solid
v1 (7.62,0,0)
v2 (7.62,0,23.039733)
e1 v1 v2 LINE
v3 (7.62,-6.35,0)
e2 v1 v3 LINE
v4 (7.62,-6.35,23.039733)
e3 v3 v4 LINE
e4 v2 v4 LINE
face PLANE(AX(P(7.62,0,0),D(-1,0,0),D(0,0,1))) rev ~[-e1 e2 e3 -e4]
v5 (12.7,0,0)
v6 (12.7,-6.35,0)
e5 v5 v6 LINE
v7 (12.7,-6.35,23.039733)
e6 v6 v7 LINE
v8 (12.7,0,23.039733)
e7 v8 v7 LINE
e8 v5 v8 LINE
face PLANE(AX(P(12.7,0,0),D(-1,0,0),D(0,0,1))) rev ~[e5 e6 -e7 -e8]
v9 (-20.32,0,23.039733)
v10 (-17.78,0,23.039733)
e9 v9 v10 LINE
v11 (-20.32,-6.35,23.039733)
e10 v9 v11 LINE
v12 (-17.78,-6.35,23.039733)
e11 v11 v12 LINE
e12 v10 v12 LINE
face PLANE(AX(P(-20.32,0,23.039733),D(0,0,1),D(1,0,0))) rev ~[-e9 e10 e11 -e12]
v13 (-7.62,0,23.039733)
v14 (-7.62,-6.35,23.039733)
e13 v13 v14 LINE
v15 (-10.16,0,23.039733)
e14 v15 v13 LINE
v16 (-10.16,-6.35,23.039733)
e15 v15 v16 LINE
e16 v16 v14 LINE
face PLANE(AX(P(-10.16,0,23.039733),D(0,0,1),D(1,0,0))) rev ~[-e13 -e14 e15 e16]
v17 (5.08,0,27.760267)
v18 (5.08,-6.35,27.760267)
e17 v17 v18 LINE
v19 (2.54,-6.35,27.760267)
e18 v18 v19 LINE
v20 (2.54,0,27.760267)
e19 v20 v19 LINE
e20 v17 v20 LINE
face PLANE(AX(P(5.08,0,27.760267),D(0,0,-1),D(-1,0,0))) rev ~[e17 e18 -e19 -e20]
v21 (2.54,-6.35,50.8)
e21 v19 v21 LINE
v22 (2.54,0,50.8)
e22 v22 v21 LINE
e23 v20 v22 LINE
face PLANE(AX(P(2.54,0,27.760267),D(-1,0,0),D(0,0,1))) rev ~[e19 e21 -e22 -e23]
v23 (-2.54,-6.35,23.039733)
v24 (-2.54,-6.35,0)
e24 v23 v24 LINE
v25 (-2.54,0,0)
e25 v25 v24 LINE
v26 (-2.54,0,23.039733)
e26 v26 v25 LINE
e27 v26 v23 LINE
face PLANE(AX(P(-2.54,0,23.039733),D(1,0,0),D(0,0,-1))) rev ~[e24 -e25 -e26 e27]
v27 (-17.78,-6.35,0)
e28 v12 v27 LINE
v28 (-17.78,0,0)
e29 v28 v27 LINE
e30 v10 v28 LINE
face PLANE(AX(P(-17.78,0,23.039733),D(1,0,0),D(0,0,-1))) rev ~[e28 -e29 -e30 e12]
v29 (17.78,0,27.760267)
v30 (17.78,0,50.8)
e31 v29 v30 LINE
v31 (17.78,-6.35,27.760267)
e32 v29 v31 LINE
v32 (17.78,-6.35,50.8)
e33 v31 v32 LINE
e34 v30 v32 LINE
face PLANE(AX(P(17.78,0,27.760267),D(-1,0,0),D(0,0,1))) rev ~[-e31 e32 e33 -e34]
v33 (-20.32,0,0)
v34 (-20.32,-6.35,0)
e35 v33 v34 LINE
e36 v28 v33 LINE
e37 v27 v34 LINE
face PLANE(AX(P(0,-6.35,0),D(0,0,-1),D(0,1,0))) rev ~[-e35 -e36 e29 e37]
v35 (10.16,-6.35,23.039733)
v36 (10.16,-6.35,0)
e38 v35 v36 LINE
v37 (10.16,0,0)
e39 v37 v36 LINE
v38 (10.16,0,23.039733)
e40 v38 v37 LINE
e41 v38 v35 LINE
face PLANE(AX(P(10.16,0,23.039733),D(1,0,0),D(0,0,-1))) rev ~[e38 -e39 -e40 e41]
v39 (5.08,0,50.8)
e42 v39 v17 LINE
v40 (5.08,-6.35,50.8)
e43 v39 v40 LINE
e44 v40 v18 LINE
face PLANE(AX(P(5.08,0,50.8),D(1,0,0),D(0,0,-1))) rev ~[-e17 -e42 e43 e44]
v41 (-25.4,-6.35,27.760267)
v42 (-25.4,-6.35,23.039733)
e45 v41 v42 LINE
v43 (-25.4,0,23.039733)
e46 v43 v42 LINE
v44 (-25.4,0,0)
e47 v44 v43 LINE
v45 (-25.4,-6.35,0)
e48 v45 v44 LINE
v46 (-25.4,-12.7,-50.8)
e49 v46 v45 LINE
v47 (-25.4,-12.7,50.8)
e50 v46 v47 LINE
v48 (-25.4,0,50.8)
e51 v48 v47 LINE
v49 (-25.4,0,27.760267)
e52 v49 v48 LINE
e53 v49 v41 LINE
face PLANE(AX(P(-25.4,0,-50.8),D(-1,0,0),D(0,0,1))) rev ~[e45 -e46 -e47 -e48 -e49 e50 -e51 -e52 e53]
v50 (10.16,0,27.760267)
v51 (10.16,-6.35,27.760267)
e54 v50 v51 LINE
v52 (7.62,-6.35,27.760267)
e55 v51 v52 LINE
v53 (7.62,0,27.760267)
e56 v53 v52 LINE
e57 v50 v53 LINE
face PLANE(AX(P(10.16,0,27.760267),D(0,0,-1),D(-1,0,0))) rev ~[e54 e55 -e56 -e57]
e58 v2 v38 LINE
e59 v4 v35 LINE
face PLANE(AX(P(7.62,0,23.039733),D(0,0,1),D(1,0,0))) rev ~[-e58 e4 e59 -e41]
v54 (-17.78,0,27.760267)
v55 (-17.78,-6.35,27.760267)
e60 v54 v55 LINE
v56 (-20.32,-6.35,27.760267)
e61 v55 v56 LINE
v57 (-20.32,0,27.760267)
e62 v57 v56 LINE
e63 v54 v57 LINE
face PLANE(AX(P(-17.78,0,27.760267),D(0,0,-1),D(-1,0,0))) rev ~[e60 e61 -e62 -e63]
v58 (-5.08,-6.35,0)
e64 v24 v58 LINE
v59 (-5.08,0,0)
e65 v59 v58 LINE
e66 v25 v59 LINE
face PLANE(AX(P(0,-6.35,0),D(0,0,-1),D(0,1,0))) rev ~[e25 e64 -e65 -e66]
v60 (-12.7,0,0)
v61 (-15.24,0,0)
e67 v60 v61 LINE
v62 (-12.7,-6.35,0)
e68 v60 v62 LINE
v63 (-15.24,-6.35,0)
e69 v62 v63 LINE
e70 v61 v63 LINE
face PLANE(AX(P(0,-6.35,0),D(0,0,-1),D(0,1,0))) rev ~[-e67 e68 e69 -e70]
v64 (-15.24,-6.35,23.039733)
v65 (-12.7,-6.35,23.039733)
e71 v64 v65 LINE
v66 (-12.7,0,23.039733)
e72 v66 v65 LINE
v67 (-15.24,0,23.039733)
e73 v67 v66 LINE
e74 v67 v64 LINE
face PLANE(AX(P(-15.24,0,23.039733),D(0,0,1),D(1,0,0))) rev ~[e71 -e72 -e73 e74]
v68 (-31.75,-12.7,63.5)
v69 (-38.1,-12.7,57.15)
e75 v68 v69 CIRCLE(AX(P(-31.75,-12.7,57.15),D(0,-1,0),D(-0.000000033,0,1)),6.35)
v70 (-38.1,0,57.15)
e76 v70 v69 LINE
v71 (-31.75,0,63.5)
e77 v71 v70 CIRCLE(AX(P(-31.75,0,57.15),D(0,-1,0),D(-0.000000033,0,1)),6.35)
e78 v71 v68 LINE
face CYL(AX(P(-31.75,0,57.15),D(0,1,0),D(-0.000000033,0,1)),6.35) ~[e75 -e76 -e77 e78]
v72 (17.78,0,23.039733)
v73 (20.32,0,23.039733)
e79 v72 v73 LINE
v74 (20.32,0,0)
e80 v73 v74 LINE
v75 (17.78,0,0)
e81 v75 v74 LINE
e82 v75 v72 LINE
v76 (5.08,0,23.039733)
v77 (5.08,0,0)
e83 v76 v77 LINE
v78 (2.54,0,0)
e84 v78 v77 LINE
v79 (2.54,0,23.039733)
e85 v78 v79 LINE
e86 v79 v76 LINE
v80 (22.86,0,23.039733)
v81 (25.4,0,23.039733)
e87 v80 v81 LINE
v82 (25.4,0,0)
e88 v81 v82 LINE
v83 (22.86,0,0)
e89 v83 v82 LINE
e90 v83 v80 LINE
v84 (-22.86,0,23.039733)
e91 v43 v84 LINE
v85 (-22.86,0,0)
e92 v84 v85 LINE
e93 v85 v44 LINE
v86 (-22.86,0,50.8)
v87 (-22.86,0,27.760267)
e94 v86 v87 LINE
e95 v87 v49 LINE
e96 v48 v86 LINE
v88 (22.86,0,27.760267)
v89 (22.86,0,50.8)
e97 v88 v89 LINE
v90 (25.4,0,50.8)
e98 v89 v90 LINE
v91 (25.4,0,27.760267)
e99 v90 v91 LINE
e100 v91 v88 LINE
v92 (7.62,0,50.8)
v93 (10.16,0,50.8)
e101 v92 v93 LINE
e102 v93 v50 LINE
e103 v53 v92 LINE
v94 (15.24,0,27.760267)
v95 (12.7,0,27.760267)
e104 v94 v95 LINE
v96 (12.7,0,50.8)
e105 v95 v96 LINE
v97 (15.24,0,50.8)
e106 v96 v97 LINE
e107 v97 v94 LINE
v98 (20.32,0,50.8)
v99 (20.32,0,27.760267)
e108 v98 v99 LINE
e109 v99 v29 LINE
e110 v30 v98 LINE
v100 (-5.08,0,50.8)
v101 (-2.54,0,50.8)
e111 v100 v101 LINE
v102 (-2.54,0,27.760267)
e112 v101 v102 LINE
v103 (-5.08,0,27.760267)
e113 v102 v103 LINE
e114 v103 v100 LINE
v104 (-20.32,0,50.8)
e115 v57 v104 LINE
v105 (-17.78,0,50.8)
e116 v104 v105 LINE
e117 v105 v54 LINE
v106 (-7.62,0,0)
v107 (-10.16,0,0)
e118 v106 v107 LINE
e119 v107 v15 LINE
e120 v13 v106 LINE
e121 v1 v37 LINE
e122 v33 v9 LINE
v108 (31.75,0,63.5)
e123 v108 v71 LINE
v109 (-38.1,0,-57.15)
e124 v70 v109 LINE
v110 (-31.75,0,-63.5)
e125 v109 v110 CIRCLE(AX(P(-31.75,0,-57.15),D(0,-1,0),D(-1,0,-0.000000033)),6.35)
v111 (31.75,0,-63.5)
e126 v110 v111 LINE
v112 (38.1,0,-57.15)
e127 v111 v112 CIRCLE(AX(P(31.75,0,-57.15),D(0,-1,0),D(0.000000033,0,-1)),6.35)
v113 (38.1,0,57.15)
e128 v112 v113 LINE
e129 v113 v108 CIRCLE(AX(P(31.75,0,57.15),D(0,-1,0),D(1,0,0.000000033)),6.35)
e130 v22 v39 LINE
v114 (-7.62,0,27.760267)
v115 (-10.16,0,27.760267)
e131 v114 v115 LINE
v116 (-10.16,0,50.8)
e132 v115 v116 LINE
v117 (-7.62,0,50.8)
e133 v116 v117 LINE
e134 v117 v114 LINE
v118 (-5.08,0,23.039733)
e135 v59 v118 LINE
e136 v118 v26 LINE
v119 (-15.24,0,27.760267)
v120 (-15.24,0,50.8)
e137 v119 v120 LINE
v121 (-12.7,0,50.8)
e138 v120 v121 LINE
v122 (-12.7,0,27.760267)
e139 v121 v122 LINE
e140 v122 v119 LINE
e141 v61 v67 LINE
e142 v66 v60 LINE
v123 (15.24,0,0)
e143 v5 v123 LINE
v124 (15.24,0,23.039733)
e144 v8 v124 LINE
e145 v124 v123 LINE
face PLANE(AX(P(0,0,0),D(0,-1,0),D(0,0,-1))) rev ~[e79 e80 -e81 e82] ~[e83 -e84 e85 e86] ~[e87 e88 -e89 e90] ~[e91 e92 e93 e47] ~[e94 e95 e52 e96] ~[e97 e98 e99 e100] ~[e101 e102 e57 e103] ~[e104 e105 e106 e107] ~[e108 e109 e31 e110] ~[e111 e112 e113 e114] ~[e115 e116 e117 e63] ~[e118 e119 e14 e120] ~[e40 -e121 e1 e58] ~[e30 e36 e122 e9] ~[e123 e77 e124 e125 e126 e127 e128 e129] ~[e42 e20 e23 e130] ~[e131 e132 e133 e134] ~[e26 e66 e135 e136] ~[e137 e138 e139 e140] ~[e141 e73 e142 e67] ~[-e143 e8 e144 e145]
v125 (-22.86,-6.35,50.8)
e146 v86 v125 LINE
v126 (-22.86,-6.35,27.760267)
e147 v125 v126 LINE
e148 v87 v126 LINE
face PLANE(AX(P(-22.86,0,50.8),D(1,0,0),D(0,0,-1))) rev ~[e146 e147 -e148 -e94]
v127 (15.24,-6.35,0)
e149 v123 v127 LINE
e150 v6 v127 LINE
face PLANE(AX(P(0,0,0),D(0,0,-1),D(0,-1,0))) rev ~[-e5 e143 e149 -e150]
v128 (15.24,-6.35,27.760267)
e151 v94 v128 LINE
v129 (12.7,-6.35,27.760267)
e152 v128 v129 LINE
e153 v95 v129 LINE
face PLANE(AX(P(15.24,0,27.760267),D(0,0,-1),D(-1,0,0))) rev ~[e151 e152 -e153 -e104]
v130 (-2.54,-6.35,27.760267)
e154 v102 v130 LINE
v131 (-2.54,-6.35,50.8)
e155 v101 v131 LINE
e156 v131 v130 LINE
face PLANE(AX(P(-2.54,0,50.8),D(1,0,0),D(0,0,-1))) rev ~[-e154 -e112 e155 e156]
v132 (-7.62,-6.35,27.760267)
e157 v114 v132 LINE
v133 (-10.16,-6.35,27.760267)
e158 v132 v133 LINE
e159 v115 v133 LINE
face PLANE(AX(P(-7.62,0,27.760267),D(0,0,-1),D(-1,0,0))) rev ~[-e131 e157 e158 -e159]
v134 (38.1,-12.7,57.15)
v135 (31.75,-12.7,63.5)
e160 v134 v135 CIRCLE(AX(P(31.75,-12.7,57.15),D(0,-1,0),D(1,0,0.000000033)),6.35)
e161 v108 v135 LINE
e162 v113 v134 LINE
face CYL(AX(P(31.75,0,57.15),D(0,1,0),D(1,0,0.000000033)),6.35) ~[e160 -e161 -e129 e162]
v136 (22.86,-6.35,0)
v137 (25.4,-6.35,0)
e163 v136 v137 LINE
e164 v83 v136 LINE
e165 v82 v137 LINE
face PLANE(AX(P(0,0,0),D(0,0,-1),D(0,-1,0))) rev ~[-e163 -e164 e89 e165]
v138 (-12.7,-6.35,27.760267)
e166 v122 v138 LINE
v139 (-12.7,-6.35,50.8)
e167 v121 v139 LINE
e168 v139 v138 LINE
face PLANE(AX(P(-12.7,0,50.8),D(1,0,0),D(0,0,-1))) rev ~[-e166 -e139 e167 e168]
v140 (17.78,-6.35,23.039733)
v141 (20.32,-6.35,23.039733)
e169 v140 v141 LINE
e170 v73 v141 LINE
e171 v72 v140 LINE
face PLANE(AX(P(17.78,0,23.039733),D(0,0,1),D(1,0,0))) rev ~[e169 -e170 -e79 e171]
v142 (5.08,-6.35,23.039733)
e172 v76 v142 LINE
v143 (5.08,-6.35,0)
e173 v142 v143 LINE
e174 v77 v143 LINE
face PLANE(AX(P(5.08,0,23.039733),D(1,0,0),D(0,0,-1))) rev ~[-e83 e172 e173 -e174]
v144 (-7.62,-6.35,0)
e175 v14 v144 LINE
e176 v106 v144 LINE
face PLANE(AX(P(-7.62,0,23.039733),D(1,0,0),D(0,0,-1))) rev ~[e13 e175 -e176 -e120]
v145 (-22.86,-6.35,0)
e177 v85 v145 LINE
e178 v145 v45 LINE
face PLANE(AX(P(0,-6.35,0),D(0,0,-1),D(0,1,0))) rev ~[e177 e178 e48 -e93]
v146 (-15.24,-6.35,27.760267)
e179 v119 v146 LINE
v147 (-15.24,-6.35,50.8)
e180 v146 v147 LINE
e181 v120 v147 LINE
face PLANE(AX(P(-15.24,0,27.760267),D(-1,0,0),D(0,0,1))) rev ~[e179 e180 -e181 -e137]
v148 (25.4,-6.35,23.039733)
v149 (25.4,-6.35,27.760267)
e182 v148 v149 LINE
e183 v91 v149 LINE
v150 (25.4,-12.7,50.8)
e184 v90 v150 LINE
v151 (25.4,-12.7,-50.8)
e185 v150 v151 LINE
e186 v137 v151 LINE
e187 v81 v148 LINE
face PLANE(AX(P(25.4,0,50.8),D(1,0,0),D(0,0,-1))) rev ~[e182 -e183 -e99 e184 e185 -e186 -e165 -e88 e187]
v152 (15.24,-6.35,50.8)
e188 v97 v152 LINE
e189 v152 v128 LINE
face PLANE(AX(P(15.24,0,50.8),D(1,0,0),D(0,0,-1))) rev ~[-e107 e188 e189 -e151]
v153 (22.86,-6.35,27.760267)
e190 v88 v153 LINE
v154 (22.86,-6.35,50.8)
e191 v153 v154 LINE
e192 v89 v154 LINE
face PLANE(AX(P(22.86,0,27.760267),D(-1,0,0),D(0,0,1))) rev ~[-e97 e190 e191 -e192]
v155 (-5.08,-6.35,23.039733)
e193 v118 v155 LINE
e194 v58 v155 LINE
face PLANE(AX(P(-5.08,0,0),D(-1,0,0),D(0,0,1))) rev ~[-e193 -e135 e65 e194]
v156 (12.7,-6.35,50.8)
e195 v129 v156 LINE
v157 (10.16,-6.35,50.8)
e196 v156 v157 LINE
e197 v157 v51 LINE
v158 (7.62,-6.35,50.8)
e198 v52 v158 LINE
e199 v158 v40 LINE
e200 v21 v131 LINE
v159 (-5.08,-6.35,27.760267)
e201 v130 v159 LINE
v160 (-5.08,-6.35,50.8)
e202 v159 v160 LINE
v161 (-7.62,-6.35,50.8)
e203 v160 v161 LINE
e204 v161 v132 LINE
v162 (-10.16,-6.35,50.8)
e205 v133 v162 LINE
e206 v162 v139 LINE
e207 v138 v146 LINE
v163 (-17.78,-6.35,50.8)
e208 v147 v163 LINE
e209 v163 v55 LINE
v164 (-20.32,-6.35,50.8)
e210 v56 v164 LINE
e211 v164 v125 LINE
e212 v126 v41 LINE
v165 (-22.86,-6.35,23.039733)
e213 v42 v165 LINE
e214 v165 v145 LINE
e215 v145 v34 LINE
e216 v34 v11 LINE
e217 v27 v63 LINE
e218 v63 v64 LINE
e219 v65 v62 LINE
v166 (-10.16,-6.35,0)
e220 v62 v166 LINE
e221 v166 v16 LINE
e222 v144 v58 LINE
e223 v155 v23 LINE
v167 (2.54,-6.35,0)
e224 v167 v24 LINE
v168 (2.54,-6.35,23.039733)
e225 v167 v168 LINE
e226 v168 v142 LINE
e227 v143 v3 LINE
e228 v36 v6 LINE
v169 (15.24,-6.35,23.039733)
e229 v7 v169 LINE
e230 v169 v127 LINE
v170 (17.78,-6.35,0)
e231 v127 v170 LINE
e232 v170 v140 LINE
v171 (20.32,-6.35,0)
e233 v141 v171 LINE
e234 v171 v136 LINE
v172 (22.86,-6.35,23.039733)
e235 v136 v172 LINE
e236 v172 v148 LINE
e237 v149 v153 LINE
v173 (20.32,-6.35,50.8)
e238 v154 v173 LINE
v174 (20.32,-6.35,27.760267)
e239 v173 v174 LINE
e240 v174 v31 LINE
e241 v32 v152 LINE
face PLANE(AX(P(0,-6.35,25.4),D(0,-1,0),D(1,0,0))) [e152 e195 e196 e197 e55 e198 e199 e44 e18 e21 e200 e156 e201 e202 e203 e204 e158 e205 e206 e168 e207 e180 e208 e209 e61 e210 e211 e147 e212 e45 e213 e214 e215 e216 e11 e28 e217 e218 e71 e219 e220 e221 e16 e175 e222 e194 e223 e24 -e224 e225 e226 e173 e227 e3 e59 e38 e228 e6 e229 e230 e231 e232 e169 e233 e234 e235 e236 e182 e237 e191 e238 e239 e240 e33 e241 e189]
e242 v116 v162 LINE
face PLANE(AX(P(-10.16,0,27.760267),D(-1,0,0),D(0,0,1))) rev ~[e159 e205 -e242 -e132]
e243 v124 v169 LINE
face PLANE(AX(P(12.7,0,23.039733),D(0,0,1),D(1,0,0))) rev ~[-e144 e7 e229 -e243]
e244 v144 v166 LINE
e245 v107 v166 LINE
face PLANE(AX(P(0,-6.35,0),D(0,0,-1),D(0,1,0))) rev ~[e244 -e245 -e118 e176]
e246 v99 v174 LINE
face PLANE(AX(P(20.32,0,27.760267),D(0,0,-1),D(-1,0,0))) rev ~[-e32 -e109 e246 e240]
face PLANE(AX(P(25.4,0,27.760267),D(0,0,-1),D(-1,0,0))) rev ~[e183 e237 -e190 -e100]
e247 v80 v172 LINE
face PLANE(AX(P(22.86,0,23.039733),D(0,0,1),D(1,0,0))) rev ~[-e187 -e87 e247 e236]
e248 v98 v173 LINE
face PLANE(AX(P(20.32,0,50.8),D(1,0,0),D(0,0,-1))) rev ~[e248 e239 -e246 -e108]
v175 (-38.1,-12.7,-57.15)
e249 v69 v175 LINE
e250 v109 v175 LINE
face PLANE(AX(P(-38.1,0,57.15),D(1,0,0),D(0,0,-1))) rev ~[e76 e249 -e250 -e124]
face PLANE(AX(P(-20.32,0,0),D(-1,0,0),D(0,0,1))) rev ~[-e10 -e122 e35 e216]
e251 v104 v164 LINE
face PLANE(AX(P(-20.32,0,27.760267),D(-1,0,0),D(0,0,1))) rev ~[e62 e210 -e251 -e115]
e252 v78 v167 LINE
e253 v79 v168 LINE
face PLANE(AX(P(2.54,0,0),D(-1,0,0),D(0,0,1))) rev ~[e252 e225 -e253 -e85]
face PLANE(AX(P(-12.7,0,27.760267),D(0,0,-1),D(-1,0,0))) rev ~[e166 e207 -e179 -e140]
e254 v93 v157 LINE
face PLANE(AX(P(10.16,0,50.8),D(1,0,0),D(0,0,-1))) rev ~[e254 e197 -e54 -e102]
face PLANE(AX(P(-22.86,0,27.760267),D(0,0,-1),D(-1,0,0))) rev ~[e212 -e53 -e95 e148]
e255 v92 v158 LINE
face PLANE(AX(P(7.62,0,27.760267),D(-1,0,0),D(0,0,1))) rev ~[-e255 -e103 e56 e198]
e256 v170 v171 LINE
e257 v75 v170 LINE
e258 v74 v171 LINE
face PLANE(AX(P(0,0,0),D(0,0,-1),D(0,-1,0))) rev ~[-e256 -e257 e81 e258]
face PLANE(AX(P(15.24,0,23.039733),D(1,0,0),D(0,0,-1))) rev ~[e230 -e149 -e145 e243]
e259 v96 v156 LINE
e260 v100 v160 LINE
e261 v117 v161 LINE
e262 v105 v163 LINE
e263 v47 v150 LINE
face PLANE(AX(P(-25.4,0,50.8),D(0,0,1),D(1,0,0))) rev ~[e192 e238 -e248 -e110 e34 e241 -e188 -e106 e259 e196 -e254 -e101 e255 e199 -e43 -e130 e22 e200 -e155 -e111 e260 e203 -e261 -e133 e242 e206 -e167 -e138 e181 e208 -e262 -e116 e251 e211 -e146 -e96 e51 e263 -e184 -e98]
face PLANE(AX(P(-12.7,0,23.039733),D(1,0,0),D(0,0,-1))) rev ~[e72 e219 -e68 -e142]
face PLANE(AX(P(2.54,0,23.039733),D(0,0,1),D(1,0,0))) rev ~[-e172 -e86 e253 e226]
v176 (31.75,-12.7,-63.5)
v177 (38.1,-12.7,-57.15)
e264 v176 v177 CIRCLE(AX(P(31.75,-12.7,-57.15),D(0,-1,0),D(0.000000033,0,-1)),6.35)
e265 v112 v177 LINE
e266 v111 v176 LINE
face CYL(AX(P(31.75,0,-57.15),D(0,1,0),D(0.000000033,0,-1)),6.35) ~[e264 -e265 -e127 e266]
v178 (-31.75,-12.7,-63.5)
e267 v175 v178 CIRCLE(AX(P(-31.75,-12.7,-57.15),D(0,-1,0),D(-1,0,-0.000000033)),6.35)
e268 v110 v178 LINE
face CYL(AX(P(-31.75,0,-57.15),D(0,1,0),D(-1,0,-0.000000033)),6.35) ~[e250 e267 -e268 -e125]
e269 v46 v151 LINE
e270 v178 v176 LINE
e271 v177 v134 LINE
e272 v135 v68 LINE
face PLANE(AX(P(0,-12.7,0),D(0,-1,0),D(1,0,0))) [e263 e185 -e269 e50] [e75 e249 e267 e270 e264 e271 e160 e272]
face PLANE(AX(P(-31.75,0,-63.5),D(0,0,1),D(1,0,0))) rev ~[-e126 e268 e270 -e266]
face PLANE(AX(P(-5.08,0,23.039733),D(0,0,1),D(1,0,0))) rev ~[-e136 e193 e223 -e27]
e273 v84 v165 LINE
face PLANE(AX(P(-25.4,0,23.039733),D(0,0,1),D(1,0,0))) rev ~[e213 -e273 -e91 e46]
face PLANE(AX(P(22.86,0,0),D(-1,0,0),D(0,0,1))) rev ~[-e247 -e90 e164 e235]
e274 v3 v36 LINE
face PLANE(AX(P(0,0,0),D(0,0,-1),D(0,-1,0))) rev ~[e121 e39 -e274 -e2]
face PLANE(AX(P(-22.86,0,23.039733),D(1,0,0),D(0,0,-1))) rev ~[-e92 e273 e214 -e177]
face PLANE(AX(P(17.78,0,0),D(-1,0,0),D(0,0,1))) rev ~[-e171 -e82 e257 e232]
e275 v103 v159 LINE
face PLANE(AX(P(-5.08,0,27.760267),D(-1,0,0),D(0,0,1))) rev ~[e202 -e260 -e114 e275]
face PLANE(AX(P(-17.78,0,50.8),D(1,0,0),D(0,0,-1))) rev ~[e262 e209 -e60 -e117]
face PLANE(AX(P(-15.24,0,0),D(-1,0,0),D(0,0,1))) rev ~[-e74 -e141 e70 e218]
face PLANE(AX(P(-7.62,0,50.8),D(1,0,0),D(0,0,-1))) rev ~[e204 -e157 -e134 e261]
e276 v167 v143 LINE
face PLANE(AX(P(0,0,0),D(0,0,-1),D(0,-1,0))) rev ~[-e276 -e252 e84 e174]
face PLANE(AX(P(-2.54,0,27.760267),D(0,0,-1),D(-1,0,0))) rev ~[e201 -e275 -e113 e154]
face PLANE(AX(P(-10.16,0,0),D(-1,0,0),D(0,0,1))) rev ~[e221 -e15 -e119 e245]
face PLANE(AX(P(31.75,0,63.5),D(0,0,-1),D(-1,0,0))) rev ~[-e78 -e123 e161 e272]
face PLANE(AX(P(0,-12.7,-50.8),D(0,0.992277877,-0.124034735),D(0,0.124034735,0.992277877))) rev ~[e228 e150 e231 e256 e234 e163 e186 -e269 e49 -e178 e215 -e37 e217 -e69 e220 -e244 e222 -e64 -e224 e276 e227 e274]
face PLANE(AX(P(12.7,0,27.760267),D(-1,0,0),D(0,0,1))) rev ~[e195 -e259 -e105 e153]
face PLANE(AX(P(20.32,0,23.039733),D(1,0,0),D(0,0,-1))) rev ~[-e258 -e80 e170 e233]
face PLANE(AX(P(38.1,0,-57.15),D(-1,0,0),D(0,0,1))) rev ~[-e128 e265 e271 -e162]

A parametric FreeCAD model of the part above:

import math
import FreeCAD as App
import Part
import Sketcher
from FreeCAD import Vector
Q = App.Units.Quantity

doc = App.newDocument("Part")
params = doc.addObject("Spreadsheet::Sheet", "Params")
for row, (alias, value) in enumerate([
    ("sketch1_width", "2 in"),
    ("sketch1_height", "4 in"),
    ("sketch1_radius", "0.25 in"),
    ("sketch1_width2", "2.5 in"),
    ("sketch1_height2", "4.5 in"),
    ("pad1_length", "0.5 in"),
    ("sketch2_width", "0.1 in"),
    ("sketch2_width2", "0.2 in"),
    ("pad2_length", "0.25 in"),
    ("sketch3_height", "2 in"),
    ("sketch3_width", "0.5 in"),
    ("sketch3_width2", "0.25 in"),
    ("sketch4_height", "2 in"),
    ("sketch4_width", "0.5 in"),
    ("sketch4_width2", "0.25 in"),
], start=1):
    params.set(f"A{row}", alias)
    params.set(f"B{row}", "=" + value)
    params.setAlias(f"B{row}", alias)

body = doc.addObject("PartDesign::Body", "Body")

# Sketch on XZ plane
sketch1 = body.newObject("Sketcher::SketchObject", "Sketch")
sketch1.AttachmentSupport = (doc.getObject("XZ_Plane"), [""])
sketch1.MapMode = "FlatFace"
sketch1.addGeometry(Part.ArcOfCircle(Part.Circle(Vector(32, 57, 0), Vector(0, 0, 1), 6), math.radians(0), math.radians(90)), False)
sketch1.addGeometry(Part.LineSegment(Vector(32, 64, 0), Vector(-32, 64, 0)), False)
sketch1.addGeometry(Part.ArcOfCircle(Part.Circle(Vector(-32, 57, 0), Vector(0, 0, 1), 6), math.radians(90), math.radians(180)), False)
sketch1.addGeometry(Part.LineSegment(Vector(-38, 57, 0), Vector(-38, -57, 0)), False)
sketch1.addGeometry(Part.ArcOfCircle(Part.Circle(Vector(-32, -57, 0), Vector(0, 0, 1), 6), math.radians(-180), math.radians(-90)), False)
sketch1.addGeometry(Part.LineSegment(Vector(-32, -64, 0), Vector(32, -64, 0)), False)
sketch1.addGeometry(Part.ArcOfCircle(Part.Circle(Vector(32, -57, 0), Vector(0, 0, 1), 6), math.radians(-90), math.radians(0)), False)
sketch1.addGeometry(Part.LineSegment(Vector(38, -57, 0), Vector(38, 57, 0)), False)
sketch1.addGeometry(Part.LineSegment(Vector(-25, 51, 0), Vector(25, 51, 0)), False)
sketch1.addGeometry(Part.LineSegment(Vector(25, 51, 0), Vector(25, -51, 0)), False)
sketch1.addGeometry(Part.LineSegment(Vector(25, -51, 0), Vector(-25, -51, 0)), False)
sketch1.addGeometry(Part.LineSegment(Vector(-25, -51, 0), Vector(-25, 51, 0)), False)
sketch1.addConstraint(Sketcher.Constraint("Tangent", 0, 2, 1, 1))
sketch1.addConstraint(Sketcher.Constraint("Tangent", 1, 2, 2, 1))
sketch1.addConstraint(Sketcher.Constraint("Tangent", 2, 2, 3, 1))
sketch1.addConstraint(Sketcher.Constraint("Tangent", 3, 2, 4, 1))
sketch1.addConstraint(Sketcher.Constraint("Tangent", 4, 2, 5, 1))
sketch1.addConstraint(Sketcher.Constraint("Tangent", 5, 2, 6, 1))
sketch1.addConstraint(Sketcher.Constraint("Tangent", 6, 2, 7, 1))
sketch1.addConstraint(Sketcher.Constraint("Tangent", 7, 2, 0, 1))
sketch1.addConstraint(Sketcher.Constraint("Coincident", 8, 2, 9, 1))
sketch1.addConstraint(Sketcher.Constraint("Coincident", 9, 2, 10, 1))
sketch1.addConstraint(Sketcher.Constraint("Coincident", 10, 2, 11, 1))
sketch1.addConstraint(Sketcher.Constraint("Coincident", 11, 2, 8, 1))
sketch1.addConstraint(Sketcher.Constraint("Horizontal", 1))
sketch1.addConstraint(Sketcher.Constraint("Vertical", 3))
sketch1.addConstraint(Sketcher.Constraint("Horizontal", 5))
sketch1.addConstraint(Sketcher.Constraint("Vertical", 7))
sketch1.addConstraint(Sketcher.Constraint("Horizontal", 8))
sketch1.addConstraint(Sketcher.Constraint("Vertical", 9))
sketch1.addConstraint(Sketcher.Constraint("Horizontal", 10))
sketch1.addConstraint(Sketcher.Constraint("Vertical", 11))
sketch1.addConstraint(Sketcher.Constraint("Equal", 0, 2))
sketch1.addConstraint(Sketcher.Constraint("Equal", 2, 4))
sketch1.addConstraint(Sketcher.Constraint("Equal", 4, 6))
sketch1.addConstraint(Sketcher.Constraint("Symmetric", 0, 3, 4, 3, -1, 1))
sketch1.addConstraint(Sketcher.Constraint("Symmetric", 8, 2, 10, 2, -1, 1))
sketch1.addConstraint(Sketcher.Constraint("DistanceX", 8, 1, 8, 2, Q("2 in")))
sketch1.addConstraint(Sketcher.Constraint("DistanceY", 9, 2, 9, 1, Q("4 in")))
sketch1.addConstraint(Sketcher.Constraint("Radius", 0, Q("0.25 in")))
sketch1.addConstraint(Sketcher.Constraint("DistanceX", 1, 2, 1, 1, Q("2.5 in")))
sketch1.addConstraint(Sketcher.Constraint("DistanceY", 3, 2, 3, 1, Q("4.5 in")))
sketch1.setExpression("Constraints[25]", "Params.sketch1_width")
sketch1.setExpression("Constraints[26]", "Params.sketch1_height")
sketch1.setExpression("Constraints[27]", "Params.sketch1_radius")
sketch1.setExpression("Constraints[28]", "Params.sketch1_width2")
sketch1.setExpression("Constraints[29]", "Params.sketch1_height2")
pad1 = body.newObject("PartDesign::Pad", "Pad")
pad1.Profile = sketch1
pad1.setExpression("Length", "Params.pad1_length")

# Sketch on XZ plane
sketch2 = body.newObject("Sketcher::SketchObject", "Sketch001")
sketch2.AttachmentSupport = (doc.getObject("XZ_Plane"), [""])
sketch2.MapMode = "FlatFace"
sketch2.addGeometry(Part.LineSegment(Vector(22.9, 27.8, 0), Vector(22.9, 50.8, 0)), False)
sketch2.addGeometry(Part.LineSegment(Vector(22.9, 50.8, 0), Vector(20.3, 50.8, 0)), False)
sketch2.addGeometry(Part.LineSegment(Vector(20.3, 50.8, 0), Vector(20.3, 27.8, 0)), False)
sketch2.addGeometry(Part.LineSegment(Vector(20.3, 27.8, 0), Vector(17.8, 27.8, 0)), False)
sketch2.addGeometry(Part.LineSegment(Vector(17.8, 27.8, 0), Vector(17.8, 50.8, 0)), False)
sketch2.addGeometry(Part.LineSegment(Vector(17.8, 50.8, 0), Vector(15.2, 50.8, 0)), False)
sketch2.addGeometry(Part.LineSegment(Vector(15.2, 50.8, 0), Vector(15.2, 27.8, 0)), False)
sketch2.addGeometry(Part.LineSegment(Vector(15.2, 27.8, 0), Vector(12.7, 27.8, 0)), False)
sketch2.addGeometry(Part.LineSegment(Vector(12.7, 27.8, 0), Vector(12.7, 50.8, 0)), False)
sketch2.addGeometry(Part.LineSegment(Vector(12.7, 50.8, 0), Vector(10.2, 50.8, 0)), False)
sketch2.addGeometry(Part.LineSegment(Vector(10.2, 50.8, 0), Vector(10.2, 27.8, 0)), False)
sketch2.addGeometry(Part.LineSegment(Vector(10.2, 27.8, 0), Vector(7.6, 27.8, 0)), False)
sketch2.addGeometry(Part.LineSegment(Vector(7.6, 27.8, 0), Vector(7.6, 50.8, 0)), False)
sketch2.addGeometry(Part.LineSegment(Vector(7.6, 50.8, 0), Vector(5.1, 50.8, 0)), False)
sketch2.addGeometry(Part.LineSegment(Vector(5.1, 50.8, 0), Vector(5.1, 27.8, 0)), False)
sketch2.addGeometry(Part.LineSegment(Vector(5.1, 27.8, 0), Vector(2.5, 27.8, 0)), False)
sketch2.addGeometry(Part.LineSegment(Vector(2.5, 27.8, 0), Vector(2.5, 50.8, 0)), False)
sketch2.addGeometry(Part.LineSegment(Vector(2.5, 50.8, 0), Vector(-2.5, 50.8, 0)), False)
sketch2.addGeometry(Part.LineSegment(Vector(-2.5, 50.8, 0), Vector(-2.5, 27.8, 0)), False)
sketch2.addGeometry(Part.LineSegment(Vector(-2.5, 27.8, 0), Vector(-5.1, 27.8, 0)), False)
sketch2.addGeometry(Part.LineSegment(Vector(-5.1, 27.8, 0), Vector(-5.1, 50.8, 0)), False)
sketch2.addGeometry(Part.LineSegment(Vector(-5.1, 50.8, 0), Vector(-7.6, 50.8, 0)), False)
sketch2.addGeometry(Part.LineSegment(Vector(-7.6, 50.8, 0), Vector(-7.6, 27.8, 0)), False)
sketch2.addGeometry(Part.LineSegment(Vector(-7.6, 27.8, 0), Vector(-10.2, 27.8, 0)), False)
sketch2.addGeometry(Part.LineSegment(Vector(-10.2, 27.8, 0), Vector(-10.2, 50.8, 0)), False)
sketch2.addGeometry(Part.LineSegment(Vector(-10.2, 50.8, 0), Vector(-12.7, 50.8, 0)), False)
sketch2.addGeometry(Part.LineSegment(Vector(-12.7, 50.8, 0), Vector(-12.7, 27.8, 0)), False)
sketch2.addGeometry(Part.LineSegment(Vector(-12.7, 27.8, 0), Vector(-15.2, 27.8, 0)), False)
sketch2.addGeometry(Part.LineSegment(Vector(-15.2, 27.8, 0), Vector(-15.2, 50.8, 0)), False)
sketch2.addGeometry(Part.LineSegment(Vector(-15.2, 50.8, 0), Vector(-17.8, 50.8, 0)), False)
sketch2.addGeometry(Part.LineSegment(Vector(-17.8, 50.8, 0), Vector(-17.8, 27.8, 0)), False)
sketch2.addGeometry(Part.LineSegment(Vector(-17.8, 27.8, 0), Vector(-20.3, 27.8, 0)), False)
sketch2.addGeometry(Part.LineSegment(Vector(-20.3, 27.8, 0), Vector(-20.3, 50.8, 0)), False)
sketch2.addGeometry(Part.LineSegment(Vector(-20.3, 50.8, 0), Vector(-22.9, 50.8, 0)), False)
sketch2.addGeometry(Part.LineSegment(Vector(-22.9, 50.8, 0), Vector(-22.9, 27.8, 0)), False)
sketch2.addGeometry(Part.LineSegment(Vector(-22.9, 27.8, 0), Vector(-25.4, 27.8, 0)), False)
sketch2.addGeometry(Part.LineSegment(Vector(-25.4, 27.8, 0), Vector(-25.4, 23, 0)), False)
sketch2.addGeometry(Part.LineSegment(Vector(-25.4, 23, 0), Vector(-22.9, 23, 0)), False)
sketch2.addGeometry(Part.LineSegment(Vector(-22.9, 23, 0), Vector(-22.9, 0, 0)), False)
sketch2.addGeometry(Part.LineSegment(Vector(-22.9, 0, 0), Vector(-20.3, 0, 0)), False)
sketch2.addGeometry(Part.LineSegment(Vector(-20.3, 0, 0), Vector(-20.3, 23, 0)), False)
sketch2.addGeometry(Part.LineSegment(Vector(-20.3, 23, 0), Vector(-17.8, 23, 0)), False)
sketch2.addGeometry(Part.LineSegment(Vector(-17.8, 23, 0), Vector(-17.8, 0, 0)), False)
sketch2.addGeometry(Part.LineSegment(Vector(-17.8, 0, 0), Vector(-15.2, 0, 0)), False)
sketch2.addGeometry(Part.LineSegment(Vector(-15.2, 0, 0), Vector(-15.2, 23, 0)), False)
sketch2.addGeometry(Part.LineSegment(Vector(-15.2, 23, 0), Vector(-12.7, 23, 0)), False)
sketch2.addGeometry(Part.LineSegment(Vector(-12.7, 23, 0), Vector(-12.7, 0, 0)), False)
sketch2.addGeometry(Part.LineSegment(Vector(-12.7, 0, 0), Vector(-10.2, 0, 0)), False)
sketch2.addGeometry(Part.LineSegment(Vector(-10.2, 0, 0), Vector(-10.2, 23, 0)), False)
sketch2.addGeometry(Part.LineSegment(Vector(-10.2, 23, 0), Vector(-7.6, 23, 0)), False)
sketch2.addGeometry(Part.LineSegment(Vector(-7.6, 23, 0), Vector(-7.6, 0, 0)), False)
sketch2.addGeometry(Part.LineSegment(Vector(-7.6, 0, 0), Vector(-5.1, 0, 0)), False)
sketch2.addGeometry(Part.LineSegment(Vector(-5.1, 0, 0), Vector(-5.1, 23, 0)), False)
sketch2.addGeometry(Part.LineSegment(Vector(-5.1, 23, 0), Vector(-2.5, 23, 0)), False)
sketch2.addGeometry(Part.LineSegment(Vector(-2.5, 23, 0), Vector(-2.5, 0, 0)), False)
sketch2.addGeometry(Part.LineSegment(Vector(-2.5, 0, 0), Vector(2.5, 0, 0)), False)
sketch2.addGeometry(Part.LineSegment(Vector(2.5, 0, 0), Vector(2.5, 23, 0)), False)
sketch2.addGeometry(Part.LineSegment(Vector(2.5, 23, 0), Vector(5.1, 23, 0)), False)
sketch2.addGeometry(Part.LineSegment(Vector(5.1, 23, 0), Vector(5.1, 0, 0)), False)
sketch2.addGeometry(Part.LineSegment(Vector(5.1, 0, 0), Vector(7.6, 0, 0)), False)
sketch2.addGeometry(Part.LineSegment(Vector(7.6, 0, 0), Vector(7.6, 23, 0)), False)
sketch2.addGeometry(Part.LineSegment(Vector(7.6, 23, 0), Vector(10.2, 23, 0)), False)
sketch2.addGeometry(Part.LineSegment(Vector(10.2, 23, 0), Vector(10.2, 0, 0)), False)
sketch2.addGeometry(Part.LineSegment(Vector(10.2, 0, 0), Vector(12.7, 0, 0)), False)
sketch2.addGeometry(Part.LineSegment(Vector(12.7, 0, 0), Vector(12.7, 23, 0)), False)
sketch2.addGeometry(Part.LineSegment(Vector(12.7, 23, 0), Vector(15.2, 23, 0)), False)
sketch2.addGeometry(Part.LineSegment(Vector(15.2, 23, 0), Vector(15.2, 0, 0)), False)
sketch2.addGeometry(Part.LineSegment(Vector(15.2, 0, 0), Vector(17.8, 0, 0)), False)
sketch2.addGeometry(Part.LineSegment(Vector(17.8, 0, 0), Vector(17.8, 23, 0)), False)
sketch2.addGeometry(Part.LineSegment(Vector(17.8, 23, 0), Vector(20.3, 23, 0)), False)
sketch2.addGeometry(Part.LineSegment(Vector(20.3, 23, 0), Vector(20.3, 0, 0)), False)
sketch2.addGeometry(Part.LineSegment(Vector(20.3, 0, 0), Vector(22.9, 0, 0)), False)
sketch2.addGeometry(Part.LineSegment(Vector(22.9, 0, 0), Vector(22.9, 23, 0)), False)
sketch2.addGeometry(Part.LineSegment(Vector(22.9, 23, 0), Vector(25.4, 23, 0)), False)
sketch2.addGeometry(Part.LineSegment(Vector(25.4, 23, 0), Vector(25.4, 27.8, 0)), False)
sketch2.addGeometry(Part.LineSegment(Vector(25.4, 27.8, 0), Vector(22.9, 27.8, 0)), False)
sketch2.addConstraint(Sketcher.Constraint("Coincident", 0, 2, 1, 1))
sketch2.addConstraint(Sketcher.Constraint("Coincident", 1, 2, 2, 1))
sketch2.addConstraint(Sketcher.Constraint("Coincident", 2, 2, 3, 1))
sketch2.addConstraint(Sketcher.Constraint("Coincident", 3, 2, 4, 1))
sketch2.addConstraint(Sketcher.Constraint("Coincident", 4, 2, 5, 1))
sketch2.addConstraint(Sketcher.Constraint("Coincident", 5, 2, 6, 1))
sketch2.addConstraint(Sketcher.Constraint("Coincident", 6, 2, 7, 1))
sketch2.addConstraint(Sketcher.Constraint("Coincident", 7, 2, 8, 1))
sketch2.addConstraint(Sketcher.Constraint("Coincident", 8, 2, 9, 1))
sketch2.addConstraint(Sketcher.Constraint("Coincident", 9, 2, 10, 1))
sketch2.addConstraint(Sketcher.Constraint("Coincident", 10, 2, 11, 1))
sketch2.addConstraint(Sketcher.Constraint("Coincident", 11, 2, 12, 1))
sketch2.addConstraint(Sketcher.Constraint("Coincident", 12, 2, 13, 1))
sketch2.addConstraint(Sketcher.Constraint("Coincident", 13, 2, 14, 1))
sketch2.addConstraint(Sketcher.Constraint("Coincident", 14, 2, 15, 1))
sketch2.addConstraint(Sketcher.Constraint("Coincident", 15, 2, 16, 1))
sketch2.addConstraint(Sketcher.Constraint("Coincident", 16, 2, 17, 1))
sketch2.addConstraint(Sketcher.Constraint("Coincident", 17, 2, 18, 1))
sketch2.addConstraint(Sketcher.Constraint("Coincident", 18, 2, 19, 1))
sketch2.addConstraint(Sketcher.Constraint("Coincident", 19, 2, 20, 1))
sketch2.addConstraint(Sketcher.Constraint("Coincident", 20, 2, 21, 1))
sketch2.addConstraint(Sketcher.Constraint("Coincident", 21, 2, 22, 1))
sketch2.addConstraint(Sketcher.Constraint("Coincident", 22, 2, 23, 1))
sketch2.addConstraint(Sketcher.Constraint("Coincident", 23, 2, 24, 1))
sketch2.addConstraint(Sketcher.Constraint("Coincident", 24, 2, 25, 1))
sketch2.addConstraint(Sketcher.Constraint("Coincident", 25, 2, 26, 1))
sketch2.addConstraint(Sketcher.Constraint("Coincident", 26, 2, 27, 1))
sketch2.addConstraint(Sketcher.Constraint("Coincident", 27, 2, 28, 1))
sketch2.addConstraint(Sketcher.Constraint("Coincident", 28, 2, 29, 1))
sketch2.addConstraint(Sketcher.Constraint("Coincident", 29, 2, 30, 1))
sketch2.addConstraint(Sketcher.Constraint("Coincident", 30, 2, 31, 1))
sketch2.addConstraint(Sketcher.Constraint("Coincident", 31, 2, 32, 1))
sketch2.addConstraint(Sketcher.Constraint("Coincident", 32, 2, 33, 1))
sketch2.addConstraint(Sketcher.Constraint("Coincident", 33, 2, 34, 1))
sketch2.addConstraint(Sketcher.Constraint("Coincident", 34, 2, 35, 1))
sketch2.addConstraint(Sketcher.Constraint("Coincident", 35, 2, 36, 1))
sketch2.addConstraint(Sketcher.Constraint("Coincident", 36, 2, 37, 1))
sketch2.addConstraint(Sketcher.Constraint("Coincident", 37, 2, 38, 1))
sketch2.addConstraint(Sketcher.Constraint("Coincident", 38, 2, 39, 1))
sketch2.addConstraint(Sketcher.Constraint("Coincident", 39, 2, 40, 1))
sketch2.addConstraint(Sketcher.Constraint("Coincident", 40, 2, 41, 1))
sketch2.addConstraint(Sketcher.Constraint("Coincident", 41, 2, 42, 1))
sketch2.addConstraint(Sketcher.Constraint("Coincident", 42, 2, 43, 1))
sketch2.addConstraint(Sketcher.Constraint("Coincident", 43, 2, 44, 1))
sketch2.addConstraint(Sketcher.Constraint("Coincident", 44, 2, 45, 1))
sketch2.addConstraint(Sketcher.Constraint("Coincident", 45, 2, 46, 1))
sketch2.addConstraint(Sketcher.Constraint("Coincident", 46, 2, 47, 1))
sketch2.addConstraint(Sketcher.Constraint("Coincident", 47, 2, 48, 1))
sketch2.addConstraint(Sketcher.Constraint("Coincident", 48, 2, 49, 1))
sketch2.addConstraint(Sketcher.Constraint("Coincident", 49, 2, 50, 1))
sketch2.addConstraint(Sketcher.Constraint("Coincident", 50, 2, 51, 1))
sketch2.addConstraint(Sketcher.Constraint("Coincident", 51, 2, 52, 1))
sketch2.addConstraint(Sketcher.Constraint("Coincident", 52, 2, 53, 1))
sketch2.addConstraint(Sketcher.Constraint("Coincident", 53, 2, 54, 1))
sketch2.addConstraint(Sketcher.Constraint("Coincident", 54, 2, 55, 1))
sketch2.addConstraint(Sketcher.Constraint("Coincident", 55, 2, 56, 1))
sketch2.addConstraint(Sketcher.Constraint("Coincident", 56, 2, 57, 1))
sketch2.addConstraint(Sketcher.Constraint("Coincident", 57, 2, 58, 1))
sketch2.addConstraint(Sketcher.Constraint("Coincident", 58, 2, 59, 1))
sketch2.addConstraint(Sketcher.Constraint("Coincident", 59, 2, 60, 1))
sketch2.addConstraint(Sketcher.Constraint("Coincident", 60, 2, 61, 1))
sketch2.addConstraint(Sketcher.Constraint("Coincident", 61, 2, 62, 1))
sketch2.addConstraint(Sketcher.Constraint("Coincident", 62, 2, 63, 1))
sketch2.addConstraint(Sketcher.Constraint("Coincident", 63, 2, 64, 1))
sketch2.addConstraint(Sketcher.Constraint("Coincident", 64, 2, 65, 1))
sketch2.addConstraint(Sketcher.Constraint("Coincident", 65, 2, 66, 1))
sketch2.addConstraint(Sketcher.Constraint("Coincident", 66, 2, 67, 1))
sketch2.addConstraint(Sketcher.Constraint("Coincident", 67, 2, 68, 1))
sketch2.addConstraint(Sketcher.Constraint("Coincident", 68, 2, 69, 1))
sketch2.addConstraint(Sketcher.Constraint("Coincident", 69, 2, 70, 1))
sketch2.addConstraint(Sketcher.Constraint("Coincident", 70, 2, 71, 1))
sketch2.addConstraint(Sketcher.Constraint("Coincident", 71, 2, 72, 1))
sketch2.addConstraint(Sketcher.Constraint("Coincident", 72, 2, 73, 1))
sketch2.addConstraint(Sketcher.Constraint("Coincident", 73, 2, 74, 1))
sketch2.addConstraint(Sketcher.Constraint("Coincident", 74, 2, 75, 1))
sketch2.addConstraint(Sketcher.Constraint("Coincident", 75, 2, 0, 1))
sketch2.addConstraint(Sketcher.Constraint("Vertical", 0))
sketch2.addConstraint(Sketcher.Constraint("Horizontal", 1))
sketch2.addConstraint(Sketcher.Constraint("Vertical", 2))
sketch2.addConstraint(Sketcher.Constraint("Horizontal", 3))
sketch2.addConstraint(Sketcher.Constraint("Vertical", 4))
sketch2.addConstraint(Sketcher.Constraint("Horizontal", 5))
sketch2.addConstraint(Sketcher.Constraint("Vertical", 6))
sketch2.addConstraint(Sketcher.Constraint("Horizontal", 7))
sketch2.addConstraint(Sketcher.Constraint("Vertical", 8))
sketch2.addConstraint(Sketcher.Constraint("Horizontal", 9))
sketch2.addConstraint(Sketcher.Constraint("Vertical", 10))
sketch2.addConstraint(Sketcher.Constraint("Horizontal", 11))
sketch2.addConstraint(Sketcher.Constraint("Vertical", 12))
sketch2.addConstraint(Sketcher.Constraint("Horizontal", 13))
sketch2.addConstraint(Sketcher.Constraint("Vertical", 14))
sketch2.addConstraint(Sketcher.Constraint("Horizontal", 15))
sketch2.addConstraint(Sketcher.Constraint("Vertical", 16))
sketch2.addConstraint(Sketcher.Constraint("Horizontal", 17))
sketch2.addConstraint(Sketcher.Constraint("Vertical", 18))
sketch2.addConstraint(Sketcher.Constraint("Horizontal", 19))
sketch2.addConstraint(Sketcher.Constraint("Vertical", 20))
sketch2.addConstraint(Sketcher.Constraint("Horizontal", 21))
sketch2.addConstraint(Sketcher.Constraint("Vertical", 22))
sketch2.addConstraint(Sketcher.Constraint("Horizontal", 23))
sketch2.addConstraint(Sketcher.Constraint("Vertical", 24))
sketch2.addConstraint(Sketcher.Constraint("Horizontal", 25))
sketch2.addConstraint(Sketcher.Constraint("Vertical", 26))
sketch2.addConstraint(Sketcher.Constraint("Horizontal", 27))
sketch2.addConstraint(Sketcher.Constraint("Vertical", 28))
sketch2.addConstraint(Sketcher.Constraint("Horizontal", 29))
sketch2.addConstraint(Sketcher.Constraint("Vertical", 30))
sketch2.addConstraint(Sketcher.Constraint("Horizontal", 31))
sketch2.addConstraint(Sketcher.Constraint("Vertical", 32))
sketch2.addConstraint(Sketcher.Constraint("Horizontal", 33))
sketch2.addConstraint(Sketcher.Constraint("Vertical", 34))
sketch2.addConstraint(Sketcher.Constraint("Horizontal", 35))
sketch2.addConstraint(Sketcher.Constraint("Vertical", 36))
sketch2.addConstraint(Sketcher.Constraint("Horizontal", 37))
sketch2.addConstraint(Sketcher.Constraint("Vertical", 38))
sketch2.addConstraint(Sketcher.Constraint("Horizontal", 39))
sketch2.addConstraint(Sketcher.Constraint("Vertical", 40))
sketch2.addConstraint(Sketcher.Constraint("Horizontal", 41))
sketch2.addConstraint(Sketcher.Constraint("Vertical", 42))
sketch2.addConstraint(Sketcher.Constraint("Horizontal", 43))
sketch2.addConstraint(Sketcher.Constraint("Vertical", 44))
sketch2.addConstraint(Sketcher.Constraint("Horizontal", 45))
sketch2.addConstraint(Sketcher.Constraint("Vertical", 46))
sketch2.addConstraint(Sketcher.Constraint("Horizontal", 47))
sketch2.addConstraint(Sketcher.Constraint("Vertical", 48))
sketch2.addConstraint(Sketcher.Constraint("Horizontal", 49))
sketch2.addConstraint(Sketcher.Constraint("Vertical", 50))
sketch2.addConstraint(Sketcher.Constraint("Horizontal", 51))
sketch2.addConstraint(Sketcher.Constraint("Vertical", 52))
sketch2.addConstraint(Sketcher.Constraint("Horizontal", 53))
sketch2.addConstraint(Sketcher.Constraint("Vertical", 54))
sketch2.addConstraint(Sketcher.Constraint("Horizontal", 55))
sketch2.addConstraint(Sketcher.Constraint("Vertical", 56))
sketch2.addConstraint(Sketcher.Constraint("Horizontal", 57))
sketch2.addConstraint(Sketcher.Constraint("Vertical", 58))
sketch2.addConstraint(Sketcher.Constraint("Horizontal", 59))
sketch2.addConstraint(Sketcher.Constraint("Vertical", 60))
sketch2.addConstraint(Sketcher.Constraint("Horizontal", 61))
sketch2.addConstraint(Sketcher.Constraint("Vertical", 62))
sketch2.addConstraint(Sketcher.Constraint("Horizontal", 63))
sketch2.addConstraint(Sketcher.Constraint("Vertical", 64))
sketch2.addConstraint(Sketcher.Constraint("Horizontal", 65))
sketch2.addConstraint(Sketcher.Constraint("Vertical", 66))
sketch2.addConstraint(Sketcher.Constraint("Horizontal", 67))
sketch2.addConstraint(Sketcher.Constraint("Vertical", 68))
sketch2.addConstraint(Sketcher.Constraint("Horizontal", 69))
sketch2.addConstraint(Sketcher.Constraint("Vertical", 70))
sketch2.addConstraint(Sketcher.Constraint("Horizontal", 71))
sketch2.addConstraint(Sketcher.Constraint("Vertical", 72))
sketch2.addConstraint(Sketcher.Constraint("Horizontal", 73))
sketch2.addConstraint(Sketcher.Constraint("Vertical", 74))
sketch2.addConstraint(Sketcher.Constraint("Horizontal", 75))
sketch2.addConstraint(Sketcher.Constraint("Symmetric", 54, 2, 55, 2, -1, 1))
sketch2.addConstraint(Sketcher.Constraint("Symmetric", 51, 2, 58, 2, -1, 1))
sketch2.addConstraint(Sketcher.Constraint("Symmetric", 47, 2, 62, 2, -1, 1))
sketch2.addConstraint(Sketcher.Constraint("Symmetric", 43, 2, 66, 2, -1, 1))
sketch2.addConstraint(Sketcher.Constraint("Symmetric", 39, 2, 70, 2, -1, 1))
sketch2.addConstraint(Sketcher.Constraint("Symmetric", 15, 2, 18, 2, -2))
sketch2.addConstraint(Sketcher.Constraint("Symmetric", 13, 2, 20, 2, -2))
sketch2.addConstraint(Sketcher.Constraint("Symmetric", 11, 2, 22, 2, -2))
sketch2.addConstraint(Sketcher.Constraint("Symmetric", 9, 2, 24, 2, -2))
sketch2.addConstraint(Sketcher.Constraint("Symmetric", 7, 2, 26, 2, -2))
sketch2.addConstraint(Sketcher.Constraint("Symmetric", 5, 2, 28, 2, -2))
sketch2.addConstraint(Sketcher.Constraint("Symmetric", 3, 2, 30, 2, -2))
sketch2.addConstraint(Sketcher.Constraint("Symmetric", 1, 2, 32, 2, -2))
sketch2.addConstraint(Sketcher.Constraint("Symmetric", 50, 2, 59, 2, -2))
sketch2.addConstraint(Sketcher.Constraint("Symmetric", 46, 2, 63, 2, -2))
sketch2.addConstraint(Sketcher.Constraint("Symmetric", 42, 2, 67, 2, -2))
sketch2.addConstraint(Sketcher.Constraint("Symmetric", 38, 2, 71, 2, -2))
sketch2.addConstraint(Sketcher.Constraint("Symmetric", 36, 2, 73, 2, -2))
sketch2.addConstraint(Sketcher.Constraint("Symmetric", 34, 2, 75, 2, -2))
sketch2.addConstraint(Sketcher.Constraint("Horizontal", 1, 2, 4, 2))
sketch2.addConstraint(Sketcher.Constraint("Horizontal", 3, 2, 6, 2))
sketch2.addConstraint(Sketcher.Constraint("Horizontal", 5, 2, 8, 2))
sketch2.addConstraint(Sketcher.Constraint("Horizontal", 7, 2, 10, 2))
sketch2.addConstraint(Sketcher.Constraint("Horizontal", 9, 2, 12, 2))
sketch2.addConstraint(Sketcher.Constraint("Horizontal", 11, 2, 14, 2))
sketch2.addConstraint(Sketcher.Constraint("Horizontal", 13, 2, 16, 2))
sketch2.addConstraint(Sketcher.Constraint("Horizontal", 31, 2, 34, 2))
sketch2.addConstraint(Sketcher.Constraint("Horizontal", 37, 2, 40, 2))
sketch2.addConstraint(Sketcher.Constraint("Horizontal", 41, 2, 44, 2))
sketch2.addConstraint(Sketcher.Constraint("Horizontal", 45, 2, 48, 2))
sketch2.addConstraint(Sketcher.Constraint("Horizontal", 49, 2, 52, 2))
sketch2.addConstraint(Sketcher.Constraint("Horizontal", 53, 2, 56, 2))
sketch2.addConstraint(Sketcher.Constraint("Horizontal", 57, 2, 60, 2))
sketch2.addConstraint(Sketcher.Constraint("Horizontal", 61, 2, 64, 2))
sketch2.addConstraint(Sketcher.Constraint("Horizontal", 65, 2, 68, 2))
sketch2.addConstraint(Sketcher.Constraint("Vertical", 34, 2, 37, 2))
sketch2.addConstraint(Sketcher.Constraint("Vertical", 32, 2, 39, 2))
sketch2.addConstraint(Sketcher.Constraint("Vertical", 30, 2, 41, 2))
sketch2.addConstraint(Sketcher.Constraint("Vertical", 28, 2, 43, 2))
sketch2.addConstraint(Sketcher.Constraint("Vertical", 26, 2, 45, 2))
sketch2.addConstraint(Sketcher.Constraint("Vertical", 24, 2, 47, 2))
sketch2.addConstraint(Sketcher.Constraint("Vertical", 22, 2, 49, 2))
sketch2.addConstraint(Sketcher.Constraint("Vertical", 20, 2, 51, 2))
sketch2.addConstraint(Sketcher.Constraint("Vertical", 18, 2, 53, 2))
sketch2.addConstraint(Sketcher.Constraint("Equal", 1, 3))
sketch2.addConstraint(Sketcher.Constraint("Equal", 3, 5))
sketch2.addConstraint(Sketcher.Constraint("Equal", 5, 7))
sketch2.addConstraint(Sketcher.Constraint("Equal", 7, 9))
sketch2.addConstraint(Sketcher.Constraint("Equal", 9, 11))
sketch2.addConstraint(Sketcher.Constraint("Equal", 11, 13))
sketch2.addConstraint(Sketcher.Constraint("Equal", 13, 15))
sketch2.addConstraint(Sketcher.Constraint("Equal", 33, 35))
sketch2.addConstraint(Sketcher.Constraint("Equal", 34, 38))
sketch2.addConstraint(Sketcher.Constraint("DistanceX", 1, 2, 1, 1, Q("0.1 in")))
sketch2.addConstraint(Sketcher.Constraint("DistanceX", 17, 2, 17, 1, Q("0.2 in")))
sketch2.addConstraint(Sketcher.Constraint("DistanceY", -1, 1, 0, 2, Q("2 in")))
sketch2.addConstraint(Sketcher.Constraint("DistanceY", 0, 1, 0, 2, 23.039733))
sketch2.setExpression("Constraints[205]", "Params.sketch2_width")
sketch2.setExpression("Constraints[206]", "Params.sketch2_width2")
pad2 = body.newObject("PartDesign::Pad", "Pad001")
pad2.Profile = sketch2
pad2.setExpression("Length", "Params.pad2_length")

# Sketch on YZ plane
sketch3 = body.newObject("Sketcher::SketchObject", "Sketch002")
sketch3.AttachmentSupport = (doc.getObject("YZ_Plane"), [""])
sketch3.MapMode = "FlatFace"
sketch3.addGeometry(Part.LineSegment(Vector(0, -51, 0), Vector(0, 0, 0)), False)
sketch3.addGeometry(Part.LineSegment(Vector(0, 0, 0), Vector(-6, 0, 0)), False)
sketch3.addGeometry(Part.LineSegment(Vector(-6, 0, 0), Vector(-13, -51, 0)), False)
sketch3.addGeometry(Part.LineSegment(Vector(-13, -51, 0), Vector(0, -51, 0)), False)
sketch3.addConstraint(Sketcher.Constraint("Coincident", 0, 2, 1, 1))
sketch3.addConstraint(Sketcher.Constraint("Coincident", 1, 2, 2, 1))
sketch3.addConstraint(Sketcher.Constraint("Coincident", 2, 2, 3, 1))
sketch3.addConstraint(Sketcher.Constraint("Coincident", 3, 2, 0, 1))
sketch3.addConstraint(Sketcher.Constraint("Vertical", 0))
sketch3.addConstraint(Sketcher.Constraint("Horizontal", 1))
sketch3.addConstraint(Sketcher.Constraint("Horizontal", 3))
sketch3.addConstraint(Sketcher.Constraint("Coincident", 0, 2, -1, 1))
sketch3.addConstraint(Sketcher.Constraint("DistanceY", 0, 1, 0, 2, Q("2 in")))
sketch3.addConstraint(Sketcher.Constraint("DistanceX", 3, 1, 3, 2, Q("0.5 in")))
sketch3.addConstraint(Sketcher.Constraint("DistanceX", 1, 2, 1, 1, Q("0.25 in")))
sketch3.setExpression("Constraints[8]", "Params.sketch3_height")
sketch3.setExpression("Constraints[9]", "Params.sketch3_width")
sketch3.setExpression("Constraints[10]", "Params.sketch3_width2")
pad3 = body.newObject("PartDesign::Pad", "Pad002")
pad3.Profile = sketch3
pad3.Type = "UpToLast"

# Sketch on YZ plane
sketch4 = body.newObject("Sketcher::SketchObject", "Sketch003")
sketch4.AttachmentSupport = (doc.getObject("YZ_Plane"), [""])
sketch4.MapMode = "FlatFace"
sketch4.addGeometry(Part.LineSegment(Vector(0, 0, 0), Vector(0, -51, 0)), False)
sketch4.addGeometry(Part.LineSegment(Vector(0, -51, 0), Vector(-13, -51, 0)), False)
sketch4.addGeometry(Part.LineSegment(Vector(-13, -51, 0), Vector(-6, 0, 0)), False)
sketch4.addGeometry(Part.LineSegment(Vector(-6, 0, 0), Vector(0, 0, 0)), False)
sketch4.addConstraint(Sketcher.Constraint("Coincident", 0, 2, 1, 1))
sketch4.addConstraint(Sketcher.Constraint("Coincident", 1, 2, 2, 1))
sketch4.addConstraint(Sketcher.Constraint("Coincident", 2, 2, 3, 1))
sketch4.addConstraint(Sketcher.Constraint("Coincident", 3, 2, 0, 1))
sketch4.addConstraint(Sketcher.Constraint("Vertical", 0))
sketch4.addConstraint(Sketcher.Constraint("Horizontal", 1))
sketch4.addConstraint(Sketcher.Constraint("Horizontal", 3))
sketch4.addConstraint(Sketcher.Constraint("Coincident", 3, 2, -1, 1))
sketch4.addConstraint(Sketcher.Constraint("DistanceY", 0, 2, 0, 1, Q("2 in")))
sketch4.addConstraint(Sketcher.Constraint("DistanceX", 1, 2, 1, 1, Q("0.5 in")))
sketch4.addConstraint(Sketcher.Constraint("DistanceX", 3, 1, 3, 2, Q("0.25 in")))
sketch4.setExpression("Constraints[8]", "Params.sketch4_height")
sketch4.setExpression("Constraints[9]", "Params.sketch4_width")
sketch4.setExpression("Constraints[10]", "Params.sketch4_width2")
pad4 = body.newObject("PartDesign::Pad", "Pad003")
pad4.Profile = sketch4
pad4.Type = "UpToLast"
pad4.Reversed = True

doc.recompute()
